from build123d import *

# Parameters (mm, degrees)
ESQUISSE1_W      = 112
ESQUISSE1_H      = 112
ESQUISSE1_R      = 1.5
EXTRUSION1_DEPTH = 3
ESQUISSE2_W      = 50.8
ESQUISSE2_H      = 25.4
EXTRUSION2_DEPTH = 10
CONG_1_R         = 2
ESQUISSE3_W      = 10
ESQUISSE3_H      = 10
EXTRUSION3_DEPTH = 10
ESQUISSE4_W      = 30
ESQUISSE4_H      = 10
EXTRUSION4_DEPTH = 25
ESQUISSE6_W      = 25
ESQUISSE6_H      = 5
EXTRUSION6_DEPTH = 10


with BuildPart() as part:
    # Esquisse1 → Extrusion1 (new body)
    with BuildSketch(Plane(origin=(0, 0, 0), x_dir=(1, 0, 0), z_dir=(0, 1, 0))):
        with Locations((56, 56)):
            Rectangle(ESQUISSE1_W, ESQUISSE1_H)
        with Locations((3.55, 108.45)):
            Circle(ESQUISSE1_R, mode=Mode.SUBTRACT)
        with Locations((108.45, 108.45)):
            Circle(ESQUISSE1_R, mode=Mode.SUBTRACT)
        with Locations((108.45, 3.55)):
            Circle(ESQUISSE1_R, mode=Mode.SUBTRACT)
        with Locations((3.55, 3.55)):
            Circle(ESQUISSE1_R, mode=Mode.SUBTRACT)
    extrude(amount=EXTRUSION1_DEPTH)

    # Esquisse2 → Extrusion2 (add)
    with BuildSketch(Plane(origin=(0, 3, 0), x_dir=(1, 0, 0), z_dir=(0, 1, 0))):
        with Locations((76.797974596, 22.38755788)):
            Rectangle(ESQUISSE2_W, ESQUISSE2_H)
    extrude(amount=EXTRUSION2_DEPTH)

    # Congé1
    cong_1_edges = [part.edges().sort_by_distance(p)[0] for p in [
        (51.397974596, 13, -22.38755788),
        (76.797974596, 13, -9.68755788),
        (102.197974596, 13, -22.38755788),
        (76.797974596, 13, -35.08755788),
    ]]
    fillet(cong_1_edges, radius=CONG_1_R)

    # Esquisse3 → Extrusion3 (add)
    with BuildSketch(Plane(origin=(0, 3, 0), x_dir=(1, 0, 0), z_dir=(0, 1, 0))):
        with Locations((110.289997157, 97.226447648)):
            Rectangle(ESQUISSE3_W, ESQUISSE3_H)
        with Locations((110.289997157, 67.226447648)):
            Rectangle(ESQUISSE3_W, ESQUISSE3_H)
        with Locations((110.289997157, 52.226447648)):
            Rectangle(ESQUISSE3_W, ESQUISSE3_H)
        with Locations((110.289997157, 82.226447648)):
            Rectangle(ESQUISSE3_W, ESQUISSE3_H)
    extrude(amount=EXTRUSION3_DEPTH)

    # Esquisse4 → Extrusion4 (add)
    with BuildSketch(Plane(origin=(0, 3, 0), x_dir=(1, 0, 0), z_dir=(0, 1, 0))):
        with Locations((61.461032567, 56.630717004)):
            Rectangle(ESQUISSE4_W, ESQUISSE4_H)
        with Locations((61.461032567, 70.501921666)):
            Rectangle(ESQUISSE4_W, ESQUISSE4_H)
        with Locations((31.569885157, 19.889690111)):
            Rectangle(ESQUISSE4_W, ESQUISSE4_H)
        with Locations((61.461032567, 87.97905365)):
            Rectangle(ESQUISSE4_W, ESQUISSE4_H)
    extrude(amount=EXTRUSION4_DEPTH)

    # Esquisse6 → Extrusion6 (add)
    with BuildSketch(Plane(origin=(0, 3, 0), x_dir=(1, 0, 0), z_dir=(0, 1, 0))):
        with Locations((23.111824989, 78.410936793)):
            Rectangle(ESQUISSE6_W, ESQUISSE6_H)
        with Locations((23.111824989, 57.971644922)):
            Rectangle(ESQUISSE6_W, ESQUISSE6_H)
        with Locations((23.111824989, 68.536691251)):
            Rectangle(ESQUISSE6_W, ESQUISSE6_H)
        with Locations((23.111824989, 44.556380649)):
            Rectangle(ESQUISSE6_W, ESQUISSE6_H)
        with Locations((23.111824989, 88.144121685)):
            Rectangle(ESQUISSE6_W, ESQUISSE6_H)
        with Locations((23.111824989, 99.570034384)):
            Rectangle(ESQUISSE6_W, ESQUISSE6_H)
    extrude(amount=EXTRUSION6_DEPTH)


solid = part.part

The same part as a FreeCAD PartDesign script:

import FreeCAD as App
import Part
import Sketcher

V = App.Vector
Q = App.Units.Quantity


def edges_at(feature, points):
    """Names of the edges that pass closest to the given points."""
    edges = feature.Shape.Edges
    near = lambda p: min(range(len(edges)), key=lambda i: edges[i].distToShape(Part.Vertex(*p))[0])
    return sorted({f"Edge{near(p) + 1}" for p in points})

doc = App.newDocument("Part")
params = doc.addObject("Spreadsheet::Sheet", "Params")
for row, (alias, value) in enumerate([
    ("sketch1_diameter", "3 mm"),
    ("sketch1_width", "112 mm"),
    ("pad1_length", "3 mm"),
    ("sketch2_width", "50.8 mm"),
    ("sketch2_height", "25.4 mm"),
    ("pad2_length", "10 mm"),
    ("fillet_radius", "2 mm"),
    ("sketch3_width", "10 mm"),
    ("pad3_length", "10 mm"),
    ("sketch4_width", "30 mm"),
    ("sketch4_height", "10 mm"),
    ("pad4_length", "25 mm"),
    ("sketch5_width", "25 mm"),
    ("sketch5_height", "5 mm"),
    ("pad5_length", "10 mm"),
], start=1):
    params.set(f"A{row}", alias)
    params.set(f"B{row}", "=" + value)
    params.setAlias(f"B{row}", alias)

body = doc.addObject("PartDesign::Body", "Body")

# Sketch on XZ plane
sketch1 = body.newObject("Sketcher::SketchObject", "Sketch")
sketch1.AttachmentSupport = (doc.getObject("XZ_Plane"), [""])
sketch1.MapMode = "FlatFace"
sketch1.addGeometry([
    Part.LineSegment(V(0, -112, 0), V(0, 0, 0)),  # 0
    Part.LineSegment(V(0, 0, 0), V(112, 0, 0)),  # 1
    Part.LineSegment(V(112, 0, 0), V(112, -112, 0)),  # 2
    Part.LineSegment(V(112, -112, 0), V(0, -112, 0)),  # 3
    Part.Circle(V(3.5, -3.5, 0), V(0, 0, 1), 1.5),  # 4
    Part.Circle(V(108.5, -3.5, 0), V(0, 0, 1), 1.5),  # 5
    Part.Circle(V(3.5, -108.5, 0), V(0, 0, 1), 1.5),  # 6
    Part.Circle(V(108.5, -108.5, 0), V(0, 0, 1), 1.5),  # 7
], False)
sketch1.addConstraint([
    Sketcher.Constraint("Coincident", 0, 2, 1, 1),
    Sketcher.Constraint("Coincident", 1, 2, 2, 1),
    Sketcher.Constraint("Coincident", 2, 2, 3, 1),
    Sketcher.Constraint("Coincident", 3, 2, 0, 1),
    Sketcher.Constraint("Vertical", 0),
    Sketcher.Constraint("Horizontal", 1),
    Sketcher.Constraint("Vertical", 2),
    Sketcher.Constraint("Horizontal", 3),
    Sketcher.Constraint("Coincident", 0, 2, -1, 1),
    Sketcher.Constraint("Equal", 4, 5),
    Sketcher.Constraint("Equal", 5, 6),
    Sketcher.Constraint("Equal", 6, 7),
    Sketcher.Constraint("Horizontal", 4, 3, 5, 3),
    Sketcher.Constraint("Horizontal", 6, 3, 7, 3),
    Sketcher.Constraint("Vertical", 4, 3, 6, 3),
    Sketcher.Constraint("Vertical", 5, 3, 7, 3),
    Sketcher.Constraint("Equal", 3, 0),
    Sketcher.Constraint("Diameter", 4, Q("3 mm")),
    Sketcher.Constraint("DistanceX", 1, 1, 1, 2, Q("112 mm")),
    Sketcher.Constraint("DistanceX", 4, 3, 5, 3, Q("104.9 mm")),
    Sketcher.Constraint("DistanceY", 6, 3, 4, 3, Q("104.9 mm")),
    Sketcher.Constraint("DistanceX", -1, 1, 4, 3, Q("3.55 mm")),
    Sketcher.Constraint("DistanceY", 4, 3, -1, 1, Q("3.55 mm")),
])
sketch1.setExpression("Constraints[17]", "Params.sketch1_diameter")
sketch1.setExpression("Constraints[18]", "Params.sketch1_width")
pad1 = body.newObject("PartDesign::Pad", "Pad")
pad1.Profile = sketch1
pad1.setExpression("Length", "Params.pad1_length")
pad1.Reversed = True

# Sketch on XZ plane
sketch2 = body.newObject("Sketcher::SketchObject", "Sketch001")
sketch2.AttachmentSupport = (doc.getObject("XZ_Plane"), [""])
sketch2.MapMode = "FlatFace"
sketch2.AttachmentOffset = App.Placement(V(0, 0, -3), App.Rotation())
sketch2.addGeometry([
    Part.LineSegment(V(51, -35, 0), V(51, -10, 0)),
    Part.LineSegment(V(51, -10, 0), V(102, -10, 0)),
    Part.LineSegment(V(102, -10, 0), V(102, -35, 0)),
    Part.LineSegment(V(102, -35, 0), V(51, -35, 0)),
], False)
sketch2.addConstraint([
    Sketcher.Constraint("Coincident", 0, 2, 1, 1),
    Sketcher.Constraint("Coincident", 1, 2, 2, 1),
    Sketcher.Constraint("Coincident", 2, 2, 3, 1),
    Sketcher.Constraint("Coincident", 3, 2, 0, 1),
    Sketcher.Constraint("Vertical", 0),
    Sketcher.Constraint("Horizontal", 1),
    Sketcher.Constraint("Vertical", 2),
    Sketcher.Constraint("Horizontal", 3),
    Sketcher.Constraint("DistanceX", 1, 1, 1, 2, Q("50.8 mm")),
    Sketcher.Constraint("DistanceY", 0, 1, 0, 2, Q("25.4 mm")),
    Sketcher.Constraint("DistanceX", -1, 1, 0, 2, Q("51.397975 mm")),
    Sketcher.Constraint("DistanceY", 0, 2, -1, 1, Q("9.687558 mm")),
])
sketch2.setExpression("Constraints[8]", "Params.sketch2_width")
sketch2.setExpression("Constraints[9]", "Params.sketch2_height")
pad2 = body.newObject("PartDesign::Pad", "Pad001")
pad2.Profile = sketch2
pad2.setExpression("Length", "Params.pad2_length")
pad2.Reversed = True
doc.recompute()

fillet = body.newObject("PartDesign::Fillet", "Fillet")
fillet.Base = (pad2, edges_at(pad2, [
    (51.398, 13, -22.388),
    (76.798, 13, -9.688),
    (102.198, 13, -22.388),
    (76.798, 13, -35.088),
]))
fillet.setExpression("Radius", "Params.fillet_radius")

# Sketch on XZ plane
sketch3 = body.newObject("Sketcher::SketchObject", "Sketch002")
sketch3.AttachmentSupport = (doc.getObject("XZ_Plane"), [""])
sketch3.MapMode = "FlatFace"
sketch3.AttachmentOffset = App.Placement(V(0, 0, -3), App.Rotation())
sketch3.addGeometry([
    Part.LineSegment(V(105, -102, 0), V(105, -92, 0)),  # 0
    Part.LineSegment(V(105, -92, 0), V(115, -92, 0)),  # 1
    Part.LineSegment(V(115, -92, 0), V(115, -102, 0)),  # 2
    Part.LineSegment(V(115, -102, 0), V(105, -102, 0)),  # 3
    Part.LineSegment(V(105, -72, 0), V(105, -62, 0)),  # 4
    Part.LineSegment(V(105, -62, 0), V(115, -62, 0)),  # 5
    Part.LineSegment(V(115, -62, 0), V(115, -72, 0)),  # 6
    Part.LineSegment(V(115, -72, 0), V(105, -72, 0)),  # 7
    Part.LineSegment(V(105, -57, 0), V(105, -47, 0)),  # 8
    Part.LineSegment(V(105, -47, 0), V(115, -47, 0)),  # 9
    Part.LineSegment(V(115, -47, 0), V(115, -57, 0)),  # 10
    Part.LineSegment(V(115, -57, 0), V(105, -57, 0)),  # 11
    Part.LineSegment(V(105, -87, 0), V(105, -77, 0)),  # 12
    Part.LineSegment(V(105, -77, 0), V(115, -77, 0)),  # 13
    Part.LineSegment(V(115, -77, 0), V(115, -87, 0)),  # 14
    Part.LineSegment(V(115, -87, 0), V(105, -87, 0)),  # 15
], False)
sketch3.addConstraint([
    Sketcher.Constraint("Coincident", 0, 2, 1, 1),
    Sketcher.Constraint("Coincident", 1, 2, 2, 1),
    Sketcher.Constraint("Coincident", 2, 2, 3, 1),
    Sketcher.Constraint("Coincident", 3, 2, 0, 1),
    Sketcher.Constraint("Coincident", 4, 2, 5, 1),
    Sketcher.Constraint("Coincident", 5, 2, 6, 1),
    Sketcher.Constraint("Coincident", 6, 2, 7, 1),
    Sketcher.Constraint("Coincident", 7, 2, 4, 1),
    Sketcher.Constraint("Coincident", 8, 2, 9, 1),
    Sketcher.Constraint("Coincident", 9, 2, 10, 1),
    Sketcher.Constraint("Coincident", 10, 2, 11, 1),
    Sketcher.Constraint("Coincident", 11, 2, 8, 1),
    Sketcher.Constraint("Coincident", 12, 2, 13, 1),
    Sketcher.Constraint("Coincident", 13, 2, 14, 1),
    Sketcher.Constraint("Coincident", 14, 2, 15, 1),
    Sketcher.Constraint("Coincident", 15, 2, 12, 1),
    Sketcher.Constraint("Vertical", 0),
    Sketcher.Constraint("Horizontal", 1),
    Sketcher.Constraint("Vertical", 2),
    Sketcher.Constraint("Horizontal", 3),
    Sketcher.Constraint("Vertical", 4),
    Sketcher.Constraint("Horizontal", 5),
    Sketcher.Constraint("Vertical", 6),
    Sketcher.Constraint("Horizontal", 7),
    Sketcher.Constraint("Vertical", 8),
    Sketcher.Constraint("Horizontal", 9),
    Sketcher.Constraint("Vertical", 10),
    Sketcher.Constraint("Horizontal", 11),
    Sketcher.Constraint("Vertical", 12),
    Sketcher.Constraint("Horizontal", 13),
    Sketcher.Constraint("Vertical", 14),
    Sketcher.Constraint("Horizontal", 15),
    Sketcher.Constraint("Vertical", 3, 2, 4, 2),
    Sketcher.Constraint("Vertical", 2, 2, 5, 2),
    Sketcher.Constraint("Vertical", 7, 2, 8, 2),
    Sketcher.Constraint("Vertical", 6, 2, 9, 2),
    Sketcher.Constraint("Vertical", 11, 2, 12, 2),
    Sketcher.Constraint("Vertical", 10, 2, 13, 2),
    Sketcher.Constraint("Equal", 15, 0),
    Sketcher.Constraint("Equal", 2, 4),
    Sketcher.Constraint("Equal", 6, 8),
    Sketcher.Constraint("Equal", 10, 12),
    Sketcher.Constraint("DistanceX", 1, 1, 1, 2, Q("10 mm")),
    Sketcher.Constraint("DistanceY", 0, 2, 4, 2, Q("30 mm")),
    Sketcher.Constraint("DistanceY", 4, 2, 8, 2, Q("15 mm")),
    Sketcher.Constraint("DistanceY", 12, 2, 7, 2, Q("5 mm")),
    Sketcher.Constraint("DistanceX", -1, 1, 0, 2, Q("105.289997 mm")),
    Sketcher.Constraint("DistanceY", 0, 2, -1, 1, Q("92.226448 mm")),
])
sketch3.setExpression("Constraints[42]", "Params.sketch3_width")
pad3 = body.newObject("PartDesign::Pad", "Pad002")
pad3.Profile = sketch3
pad3.setExpression("Length", "Params.pad3_length")
pad3.Reversed = True

# Sketch on XZ plane
sketch4 = body.newObject("Sketcher::SketchObject", "Sketch003")
sketch4.AttachmentSupport = (doc.getObject("XZ_Plane"), [""])
sketch4.MapMode = "FlatFace"
sketch4.AttachmentOffset = App.Placement(V(0, 0, -3), App.Rotation())
sketch4.addGeometry([
    Part.LineSegment(V(46, -62, 0), V(46, -52, 0)),  # 0
    Part.LineSegment(V(46, -52, 0), V(76, -52, 0)),  # 1
    Part.LineSegment(V(76, -52, 0), V(76, -62, 0)),  # 2
    Part.LineSegment(V(76, -62, 0), V(46, -62, 0)),  # 3
    Part.LineSegment(V(46, -76, 0), V(46, -66, 0)),  # 4
    Part.LineSegment(V(46, -66, 0), V(76, -66, 0)),  # 5
    Part.LineSegment(V(76, -66, 0), V(76, -76, 0)),  # 6
    Part.LineSegment(V(76, -76, 0), V(46, -76, 0)),  # 7
    Part.LineSegment(V(17, -25, 0), V(17, -15, 0)),  # 8
    Part.LineSegment(V(17, -15, 0), V(47, -15, 0)),  # 9
    Part.LineSegment(V(47, -15, 0), V(47, -25, 0)),  # 10
    Part.LineSegment(V(47, -25, 0), V(17, -25, 0)),  # 11
    Part.LineSegment(V(46, -93, 0), V(46, -83, 0)),  # 12
    Part.LineSegment(V(46, -83, 0), V(76, -83, 0)),  # 13
    Part.LineSegment(V(76, -83, 0), V(76, -93, 0)),  # 14
    Part.LineSegment(V(76, -93, 0), V(46, -93, 0)),  # 15
], False)
sketch4.addConstraint([
    Sketcher.Constraint("Coincident", 0, 2, 1, 1),
    Sketcher.Constraint("Coincident", 1, 2, 2, 1),
    Sketcher.Constraint("Coincident", 2, 2, 3, 1),
    Sketcher.Constraint("Coincident", 3, 2, 0, 1),
    Sketcher.Constraint("Coincident", 4, 2, 5, 1),
    Sketcher.Constraint("Coincident", 5, 2, 6, 1),
    Sketcher.Constraint("Coincident", 6, 2, 7, 1),
    Sketcher.Constraint("Coincident", 7, 2, 4, 1),
    Sketcher.Constraint("Coincident", 8, 2, 9, 1),
    Sketcher.Constraint("Coincident", 9, 2, 10, 1),
    Sketcher.Constraint("Coincident", 10, 2, 11, 1),
    Sketcher.Constraint("Coincident", 11, 2, 8, 1),
    Sketcher.Constraint("Coincident", 12, 2, 13, 1),
    Sketcher.Constraint("Coincident", 13, 2, 14, 1),
    Sketcher.Constraint("Coincident", 14, 2, 15, 1),
    Sketcher.Constraint("Coincident", 15, 2, 12, 1),
    Sketcher.Constraint("Vertical", 0),
    Sketcher.Constraint("Horizontal", 1),
    Sketcher.Constraint("Vertical", 2),
    Sketcher.Constraint("Horizontal", 3),
    Sketcher.Constraint("Vertical", 4),
    Sketcher.Constraint("Horizontal", 5),
    Sketcher.Constraint("Vertical", 6),
    Sketcher.Constraint("Horizontal", 7),
    Sketcher.Constraint("Vertical", 8),
    Sketcher.Constraint("Horizontal", 9),
    Sketcher.Constraint("Vertical", 10),
    Sketcher.Constraint("Horizontal", 11),
    Sketcher.Constraint("Vertical", 12),
    Sketcher.Constraint("Horizontal", 13),
    Sketcher.Constraint("Vertical", 14),
    Sketcher.Constraint("Horizontal", 15),
    Sketcher.Constraint("Vertical", 3, 2, 4, 2),
    Sketcher.Constraint("Vertical", 2, 2, 5, 2),
    Sketcher.Constraint("Vertical", 7, 2, 12, 2),
    Sketcher.Constraint("Vertical", 6, 2, 13, 2),
    Sketcher.Constraint("Equal", 7, 9),
    Sketcher.Constraint("Equal", 2, 4),
    Sketcher.Constraint("Equal", 6, 8),
    Sketcher.Constraint("Equal", 10, 12),
    Sketcher.Constraint("DistanceX", 1, 1, 1, 2, Q("30 mm")),
    Sketcher.Constraint("DistanceY", 0, 1, 0, 2, Q("10 mm")),
    Sketcher.Constraint("DistanceY", 4, 2, -1, 1, Q("65.501922 mm")),
    Sketcher.Constraint("DistanceY", 8, 2, -1, 1, Q("14.88969 mm")),
    Sketcher.Constraint("DistanceY", 12, 2, 7, 2, Q("7.477132 mm")),
    Sketcher.Constraint("DistanceX", -1, 1, 0, 2, Q("46.461033 mm")),
    Sketcher.Constraint("DistanceY", 0, 2, -1, 1, Q("51.630717 mm")),
    Sketcher.Constraint("DistanceX", -1, 1, 8, 2, Q("16.569885 mm")),
])
sketch4.setExpression("Constraints[40]", "Params.sketch4_width")
sketch4.setExpression("Constraints[41]", "Params.sketch4_height")
pad4 = body.newObject("PartDesign::Pad", "Pad003")
pad4.Profile = sketch4
pad4.setExpression("Length", "Params.pad4_length")
pad4.Reversed = True

# Sketch on XZ plane
sketch5 = body.newObject("Sketcher::SketchObject", "Sketch004")
sketch5.AttachmentSupport = (doc.getObject("XZ_Plane"), [""])
sketch5.MapMode = "FlatFace"
sketch5.AttachmentOffset = App.Placement(V(0, 0, -3), App.Rotation())
sketch5.addGeometry([
    Part.LineSegment(V(11, -81, 0), V(11, -76, 0)),  # 0
    Part.LineSegment(V(11, -76, 0), V(36, -76, 0)),  # 1
    Part.LineSegment(V(36, -76, 0), V(36, -81, 0)),  # 2
    Part.LineSegment(V(36, -81, 0), V(11, -81, 0)),  # 3
    Part.LineSegment(V(11, -60, 0), V(11, -55, 0)),  # 4
    Part.LineSegment(V(11, -55, 0), V(36, -55, 0)),  # 5
    Part.LineSegment(V(36, -55, 0), V(36, -60, 0)),  # 6
    Part.LineSegment(V(36, -60, 0), V(11, -60, 0)),  # 7
    Part.LineSegment(V(11, -71, 0), V(11, -66, 0)),  # 8
    Part.LineSegment(V(11, -66, 0), V(36, -66, 0)),  # 9
    Part.LineSegment(V(36, -66, 0), V(36, -71, 0)),  # 10
    Part.LineSegment(V(36, -71, 0), V(11, -71, 0)),  # 11
    Part.LineSegment(V(11, -47, 0), V(11, -42, 0)),  # 12
    Part.LineSegment(V(11, -42, 0), V(36, -42, 0)),  # 13
    Part.LineSegment(V(36, -42, 0), V(36, -47, 0)),  # 14
    Part.LineSegment(V(36, -47, 0), V(11, -47, 0)),  # 15
    Part.LineSegment(V(11, -91, 0), V(11, -86, 0)),  # 16
    Part.LineSegment(V(11, -86, 0), V(36, -86, 0)),  # 17
    Part.LineSegment(V(36, -86, 0), V(36, -91, 0)),  # 18
    Part.LineSegment(V(36, -91, 0), V(11, -91, 0)),  # 19
    Part.LineSegment(V(11, -102, 0), V(11, -97, 0)),  # 20
    Part.LineSegment(V(11, -97, 0), V(36, -97, 0)),  # 21
    Part.LineSegment(V(36, -97, 0), V(36, -102, 0)),  # 22
    Part.LineSegment(V(36, -102, 0), V(11, -102, 0)),  # 23
], False)
sketch5.addConstraint([
    Sketcher.Constraint("Coincident", 0, 2, 1, 1),
    Sketcher.Constraint("Coincident", 1, 2, 2, 1),
    Sketcher.Constraint("Coincident", 2, 2, 3, 1),
    Sketcher.Constraint("Coincident", 3, 2, 0, 1),
    Sketcher.Constraint("Coincident", 4, 2, 5, 1),
    Sketcher.Constraint("Coincident", 5, 2, 6, 1),
    Sketcher.Constraint("Coincident", 6, 2, 7, 1),
    Sketcher.Constraint("Coincident", 7, 2, 4, 1),
    Sketcher.Constraint("Coincident", 8, 2, 9, 1),
    Sketcher.Constraint("Coincident", 9, 2, 10, 1),
    Sketcher.Constraint("Coincident", 10, 2, 11, 1),
    Sketcher.Constraint("Coincident", 11, 2, 8, 1),
    Sketcher.Constraint("Coincident", 12, 2, 13, 1),
    Sketcher.Constraint("Coincident", 13, 2, 14, 1),
    Sketcher.Constraint("Coincident", 14, 2, 15, 1),
    Sketcher.Constraint("Coincident", 15, 2, 12, 1),
    Sketcher.Constraint("Coincident", 16, 2, 17, 1),
    Sketcher.Constraint("Coincident", 17, 2, 18, 1),
    Sketcher.Constraint("Coincident", 18, 2, 19, 1),
    Sketcher.Constraint("Coincident", 19, 2, 16, 1),
    Sketcher.Constraint("Coincident", 20, 2, 21, 1),
    Sketcher.Constraint("Coincident", 21, 2, 22, 1),
    Sketcher.Constraint("Coincident", 22, 2, 23, 1),
    Sketcher.Constraint("Coincident", 23, 2, 20, 1),
    Sketcher.Constraint("Vertical", 0),
    Sketcher.Constraint("Horizontal", 1),
    Sketcher.Constraint("Vertical", 2),
    Sketcher.Constraint("Horizontal", 3),
    Sketcher.Constraint("Vertical", 4),
    Sketcher.Constraint("Horizontal", 5),
    Sketcher.Constraint("Vertical", 6),
    Sketcher.Constraint("Horizontal", 7),
    Sketcher.Constraint("Vertical", 8),
    Sketcher.Constraint("Horizontal", 9),
    Sketcher.Constraint("Vertical", 10),
    Sketcher.Constraint("Horizontal", 11),
    Sketcher.Constraint("Vertical", 12),
    Sketcher.Constraint("Horizontal", 13),
    Sketcher.Constraint("Vertical", 14),
    Sketcher.Constraint("Horizontal", 15),
    Sketcher.Constraint("Vertical", 16),
    Sketcher.Constraint("Horizontal", 17),
    Sketcher.Constraint("Vertical", 18),
    Sketcher.Constraint("Horizontal", 19),
    Sketcher.Constraint("Vertical", 20),
    Sketcher.Constraint("Horizontal", 21),
    Sketcher.Constraint("Vertical", 22),
    Sketcher.Constraint("Horizontal", 23),
    Sketcher.Constraint("Vertical", 3, 2, 4, 2),
    Sketcher.Constraint("Vertical", 2, 2, 5, 2),
    Sketcher.Constraint("Vertical", 7, 2, 8, 2),
    Sketcher.Constraint("Vertical", 6, 2, 9, 2),
    Sketcher.Constraint("Vertical", 11, 2, 12, 2),
    Sketcher.Constraint("Vertical", 10, 2, 13, 2),
    Sketcher.Constraint("Vertical", 15, 2, 16, 2),
    Sketcher.Constraint("Vertical", 14, 2, 17, 2),
    Sketcher.Constraint("Vertical", 19, 2, 20, 2),
    Sketcher.Constraint("Vertical", 18, 2, 21, 2),
    Sketcher.Constraint("Equal", 2, 4),
    Sketcher.Constraint("Equal", 6, 8),
    Sketcher.Constraint("Equal", 10, 12),
    Sketcher.Constraint("Equal", 14, 16),
    Sketcher.Constraint("Equal", 18, 20),
    Sketcher.Constraint("DistanceX", 1, 1, 1, 2, Q("25 mm")),
    Sketcher.Constraint("DistanceY", 0, 1, 0, 2, Q("5 mm")),
    Sketcher.Constraint("DistanceY", 8, 2, -1, 1, Q("66.036691 mm")),
    Sketcher.Constraint("DistanceY", 12, 2, -1, 1, Q("42.056381 mm")),
    Sketcher.Constraint("DistanceY", 16, 2, -1, 1, Q("85.644122 mm")),
    Sketcher.Constraint("DistanceY", 0, 2, 4, 2, Q("20.439292 mm")),
    Sketcher.Constraint("DistanceX", -1, 1, 0, 2, Q("10.611825 mm")),
    Sketcher.Constraint("DistanceY", 0, 2, -1, 1, Q("75.910937 mm")),
    Sketcher.Constraint("DistanceY", 20, 2, -1, 1, Q("97.070034 mm")),
])
sketch5.setExpression("Constraints[63]", "Params.sketch5_width")
sketch5.setExpression("Constraints[64]", "Params.sketch5_height")
pad5 = body.newObject("PartDesign::Pad", "Pad004")
pad5.Profile = sketch5
pad5.setExpression("Length", "Params.pad5_length")
pad5.Reversed = True

doc.recompute()
